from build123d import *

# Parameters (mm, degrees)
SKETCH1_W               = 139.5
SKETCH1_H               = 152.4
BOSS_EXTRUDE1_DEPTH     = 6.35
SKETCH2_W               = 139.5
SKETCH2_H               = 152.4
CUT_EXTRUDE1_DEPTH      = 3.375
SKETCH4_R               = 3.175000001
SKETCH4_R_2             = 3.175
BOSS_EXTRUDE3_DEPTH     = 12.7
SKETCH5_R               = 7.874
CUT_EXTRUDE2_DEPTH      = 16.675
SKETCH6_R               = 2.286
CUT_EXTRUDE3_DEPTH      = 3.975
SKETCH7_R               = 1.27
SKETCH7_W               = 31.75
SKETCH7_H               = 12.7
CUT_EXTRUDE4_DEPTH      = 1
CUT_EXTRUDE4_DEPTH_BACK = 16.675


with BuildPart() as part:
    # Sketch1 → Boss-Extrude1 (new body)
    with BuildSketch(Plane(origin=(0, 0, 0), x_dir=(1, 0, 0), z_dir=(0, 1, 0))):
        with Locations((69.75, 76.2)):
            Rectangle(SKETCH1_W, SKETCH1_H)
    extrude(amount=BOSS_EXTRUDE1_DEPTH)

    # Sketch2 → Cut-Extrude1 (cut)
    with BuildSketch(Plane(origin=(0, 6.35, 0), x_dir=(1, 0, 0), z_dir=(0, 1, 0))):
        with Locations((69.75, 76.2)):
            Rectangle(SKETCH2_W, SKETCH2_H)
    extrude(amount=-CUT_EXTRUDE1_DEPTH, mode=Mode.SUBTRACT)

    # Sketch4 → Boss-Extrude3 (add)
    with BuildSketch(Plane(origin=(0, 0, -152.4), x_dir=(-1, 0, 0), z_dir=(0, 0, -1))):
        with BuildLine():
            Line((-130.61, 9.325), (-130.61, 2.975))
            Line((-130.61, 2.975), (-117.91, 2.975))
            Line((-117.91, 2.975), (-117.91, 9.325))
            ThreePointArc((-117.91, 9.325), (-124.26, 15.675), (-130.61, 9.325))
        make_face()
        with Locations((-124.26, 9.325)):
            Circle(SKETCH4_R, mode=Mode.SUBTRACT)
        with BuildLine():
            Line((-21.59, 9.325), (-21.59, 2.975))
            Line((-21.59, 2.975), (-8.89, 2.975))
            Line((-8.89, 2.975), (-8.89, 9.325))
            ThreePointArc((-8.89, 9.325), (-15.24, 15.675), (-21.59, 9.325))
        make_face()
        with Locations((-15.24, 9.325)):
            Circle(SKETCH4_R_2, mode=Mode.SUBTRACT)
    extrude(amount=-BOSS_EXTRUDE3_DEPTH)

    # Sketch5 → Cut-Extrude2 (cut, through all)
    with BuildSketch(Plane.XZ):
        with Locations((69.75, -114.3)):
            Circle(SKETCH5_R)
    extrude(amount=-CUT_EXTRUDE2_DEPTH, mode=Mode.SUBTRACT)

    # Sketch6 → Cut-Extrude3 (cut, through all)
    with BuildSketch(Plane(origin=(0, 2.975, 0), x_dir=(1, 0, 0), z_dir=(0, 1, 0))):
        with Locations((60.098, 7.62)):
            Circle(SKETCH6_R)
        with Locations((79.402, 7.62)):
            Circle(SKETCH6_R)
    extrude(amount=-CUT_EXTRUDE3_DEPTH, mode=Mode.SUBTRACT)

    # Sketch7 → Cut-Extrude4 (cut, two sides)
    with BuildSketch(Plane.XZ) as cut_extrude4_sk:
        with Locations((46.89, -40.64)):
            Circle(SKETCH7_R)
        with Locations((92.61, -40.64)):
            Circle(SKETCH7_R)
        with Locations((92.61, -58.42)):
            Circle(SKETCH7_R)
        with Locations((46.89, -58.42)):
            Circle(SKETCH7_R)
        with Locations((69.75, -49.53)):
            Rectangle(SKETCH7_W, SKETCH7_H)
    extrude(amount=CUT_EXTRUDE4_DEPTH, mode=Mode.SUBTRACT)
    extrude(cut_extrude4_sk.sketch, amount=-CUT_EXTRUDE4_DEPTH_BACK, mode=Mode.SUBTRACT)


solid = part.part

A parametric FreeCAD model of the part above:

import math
import FreeCAD as App
import Part
import Sketcher
from FreeCAD import Vector
Q = App.Units.Quantity


def add_polygon(sketch, points):
    """Adds a closed chain of lines whose ends are joined by coincident constraints."""
    first, n = sketch.GeometryCount, len(points)
    for a, b in zip(points, points[1:] + points[:1]):
        sketch.addGeometry(Part.LineSegment(App.Vector(*a, 0), App.Vector(*b, 0)), False)
    for i in range(n):
        sketch.addConstraint(Sketcher.Constraint("Coincident", first + i, 2, first + (i + 1) % n, 1))

doc = App.newDocument("Part")
body = doc.addObject("PartDesign::Body", "Body")

sketch1 = body.newObject("Sketcher::SketchObject", "Sketch")
sketch1.AttachmentSupport = (doc.getObject("XZ_Plane"), [""])
sketch1.MapMode = "FlatFace"
add_polygon(sketch1, [(0, -152), (0, 0), (140, 0), (140, -152)])
sketch1.addConstraint([
    Sketcher.Constraint("Vertical", 0),
    Sketcher.Constraint("Horizontal", 1),
    Sketcher.Constraint("Vertical", 2),
    Sketcher.Constraint("Horizontal", 3),
    Sketcher.Constraint("Coincident", 0, 2, -1, 1),
    Sketcher.Constraint("DistanceY", 0, 1, 0, 2, Q("6 in")),
    Sketcher.Constraint("DistanceX", 1, 1, 1, 2, Q("139.5 mm")),
])
pad1 = body.newObject("PartDesign::Pad", "Pad")
pad1.Profile = sketch1
pad1.Length = Q("0.25 in")
pad1.Reversed = True

sketch2 = body.newObject("Sketcher::SketchObject", "Sketch001")
sketch2.AttachmentSupport = (doc.getObject("XZ_Plane"), [""])
sketch2.MapMode = "FlatFace"
sketch2.AttachmentOffset = App.Placement(Vector(0, 0, -0.25 * 25.4), App.Rotation())
add_polygon(sketch2, [(0, -152), (0, 0), (140, 0), (140, -152)])
sketch2.addConstraint([
    Sketcher.Constraint("Vertical", 0),
    Sketcher.Constraint("Horizontal", 1),
    Sketcher.Constraint("Vertical", 2),
    Sketcher.Constraint("Horizontal", 3),
    Sketcher.Constraint("Coincident", 0, 2, -1, 1),
    Sketcher.Constraint("DistanceY", 0, 1, 0, 2, Q("6 in")),
    Sketcher.Constraint("DistanceX", 1, 1, 1, 2, Q("139.5 mm")),
])
pocket1 = body.newObject("PartDesign::Pocket", "Pocket")
pocket1.Profile = sketch2
pocket1.Length = 3.375
pocket1.Reversed = True

sketch3 = body.newObject("Sketcher::SketchObject", "Sketch002")
sketch3.AttachmentSupport = (doc.getObject("XY_Plane"), [""])
sketch3.MapMode = "FlatFace"
sketch3.AttachmentOffset = App.Placement(Vector(0, 0, -6 * 25.4), App.Rotation())
sketch3.addGeometry([
    Part.LineSegment(Vector(130.6, 9.3, 0), Vector(130.6, 3, 0)),
    Part.LineSegment(Vector(130.6, 3, 0), Vector(117.9, 3, 0)),
    Part.LineSegment(Vector(117.9, 3, 0), Vector(117.9, 9.3, 0)),
    Part.ArcOfCircle(Part.Circle(Vector(124.3, 9.3, 0), Vector(0, 0, 1), 6.3), math.radians(0), math.radians(180)),
    Part.Circle(Vector(124.3, 9.3, 0), Vector(0, 0, 1), 3.2),
    Part.LineSegment(Vector(21.6, 9.3, 0), Vector(21.6, 3, 0)),
    Part.LineSegment(Vector(21.6, 3, 0), Vector(8.9, 3, 0)),
    Part.LineSegment(Vector(8.9, 3, 0), Vector(8.9, 9.3, 0)),
    Part.ArcOfCircle(Part.Circle(Vector(15.2, 9.3, 0), Vector(0, 0, 1), 6.3), math.radians(0), math.radians(180)),
    Part.Circle(Vector(15.2, 9.3, 0), Vector(0, 0, 1), 3.2),
], False)
sketch3.addConstraint([
    Sketcher.Constraint("Coincident", 0, 2, 1, 1),
    Sketcher.Constraint("Coincident", 1, 2, 2, 1),
    Sketcher.Constraint("Tangent", 2, 2, 3, 2),
    Sketcher.Constraint("Tangent", 3, 1, 0, 1),
    Sketcher.Constraint("Coincident", 5, 2, 6, 1),
    Sketcher.Constraint("Coincident", 6, 2, 7, 1),
    Sketcher.Constraint("Tangent", 7, 2, 8, 2),
    Sketcher.Constraint("Tangent", 8, 1, 5, 1),
    Sketcher.Constraint("Vertical", 0),
    Sketcher.Constraint("Horizontal", 1),
    Sketcher.Constraint("Vertical", 2),
    Sketcher.Constraint("Vertical", 5),
    Sketcher.Constraint("Horizontal", 6),
    Sketcher.Constraint("Vertical", 7),
    Sketcher.Constraint("Coincident", 4, 3, 3, 3),
    Sketcher.Constraint("Coincident", 9, 3, 8, 3),
    Sketcher.Constraint("Equal", 3, 8),
    Sketcher.Constraint("Equal", 4, 9),
    Sketcher.Constraint("Horizontal", 4, 3, 8, 3),
    Sketcher.Constraint("Horizontal", 1, 2, 5, 2),
    Sketcher.Constraint("Diameter", 4, Q("0.25 in")),
    Sketcher.Constraint("Radius", 3, Q("0.25 in")),
    Sketcher.Constraint("DistanceY", 0, 2, 0, 1, Q("0.25 in")),
    Sketcher.Constraint("DistanceX", -1, 1, 8, 3, Q("0.6 in")),
    Sketcher.Constraint("DistanceX", -1, 1, 3, 3, Q("124.26 mm")),
    Sketcher.Constraint("DistanceY", -1, 1, 3, 3, Q("9.325 mm")),
])
pad2 = body.newObject("PartDesign::Pad", "Pad001")
pad2.Profile = sketch3
pad2.Length = Q("0.5 in")

sketch4 = body.newObject("Sketcher::SketchObject", "Sketch003")
sketch4.AttachmentSupport = (doc.getObject("XZ_Plane"), [""])
sketch4.MapMode = "FlatFace"
sketch4.addGeometry(Part.Circle(Vector(70, -114, 0), Vector(0, 0, 1), 8), False)
sketch4.addConstraint([
    Sketcher.Constraint("Diameter", 0, Q("0.62 in")),
    Sketcher.Constraint("DistanceY", 0, 3, -1, 1, Q("4.5 in")),
    Sketcher.Constraint("DistanceX", -1, 1, 0, 3, Q("69.75 mm")),
])
pocket2 = body.newObject("PartDesign::Pocket", "Pocket001")
pocket2.Profile = sketch4
pocket2.Type = "ThroughAll"

sketch5 = body.newObject("Sketcher::SketchObject", "Sketch004")
sketch5.AttachmentSupport = (doc.getObject("XZ_Plane"), [""])
sketch5.MapMode = "FlatFace"
sketch5.AttachmentOffset = App.Placement(Vector(0, 0, -2.975), App.Rotation())
sketch5.addGeometry([
    Part.Circle(Vector(60.1, -7.6, 0), Vector(0, 0, 1), 2.3),
    Part.Circle(Vector(79.4, -7.6, 0), Vector(0, 0, 1), 2.3),
], False)
sketch5.addConstraint([
    Sketcher.Constraint("Equal", 0, 1),
    Sketcher.Constraint("Horizontal", 0, 3, 1, 3),
    Sketcher.Constraint("Diameter", 0, Q("0.18 in")),
    Sketcher.Constraint("DistanceY", 0, 3, -1, 1, Q("0.3 in")),
    Sketcher.Constraint("DistanceX", 0, 3, 1, 3, Q("0.76 in")),
    Sketcher.Constraint("DistanceX", -1, 1, 0, 3, Q("60.098 mm")),
])
pocket3 = body.newObject("PartDesign::Pocket", "Pocket002")
pocket3.Profile = sketch5
pocket3.Type = "ThroughAll"
pocket3.Reversed = True

sketch6 = body.newObject("Sketcher::SketchObject", "Sketch005")
sketch6.AttachmentSupport = (doc.getObject("XZ_Plane"), [""])
sketch6.MapMode = "FlatFace"
sketch6.addGeometry(Part.Circle(Vector(46.9, -40.6, 0), Vector(0, 0, 1), 1.3), False)
sketch6.addGeometry(Part.Circle(Vector(92.6, -40.6, 0), Vector(0, 0, 1), 1.3), False)
sketch6.addGeometry(Part.Circle(Vector(92.6, -58.4, 0), Vector(0, 0, 1), 1.3), False)
sketch6.addGeometry(Part.Circle(Vector(46.9, -58.4, 0), Vector(0, 0, 1), 1.3), False)
add_polygon(sketch6, [(53.9, -43.2), (53.9, -55.9), (85.6, -55.9), (85.6, -43.2)])
sketch6.addConstraint([
    Sketcher.Constraint("Vertical", 4),
    Sketcher.Constraint("Horizontal", 5),
    Sketcher.Constraint("Vertical", 6),
    Sketcher.Constraint("Horizontal", 7),
    Sketcher.Constraint("Equal", 0, 1),
    Sketcher.Constraint("Equal", 1, 2),
    Sketcher.Constraint("Equal", 2, 3),
    Sketcher.Constraint("Horizontal", 0, 3, 1, 3),
    Sketcher.Constraint("Horizontal", 2, 3, 3, 3),
    Sketcher.Constraint("Vertical", 1, 3, 2, 3),
    Sketcher.Constraint("Vertical", 0, 3, 3, 3),
    Sketcher.Constraint("Diameter", 0, Q("0.1 in")),
    Sketcher.Constraint("DistanceY", 4, 2, 4, 1, Q("0.5 in")),
    Sketcher.Constraint("DistanceX", 5, 1, 5, 2, Q("1.25 in")),
    Sketcher.Constraint("DistanceY", 0, 3, -1, 1, Q("1.6 in")),
    Sketcher.Constraint("DistanceY", 2, 3, -1, 1, Q("2.3 in")),
    Sketcher.Constraint("DistanceY", 4, 2, -1, 1, Q("2.2 in")),
    Sketcher.Constraint("DistanceX", 0, 3, 1, 3, Q("1.8 in")),
    Sketcher.Constraint("DistanceX", 3, 3, 4, 2, Q("0.275 in")),
    Sketcher.Constraint("DistanceX", -1, 1, 0, 3, Q("46.89 mm")),
])
pocket4 = body.newObject("PartDesign::Pocket", "Pocket003")
pocket4.Profile = sketch6
pocket4.Type = "ThroughAll"
pocket4.Midplane = True

doc.recompute()
